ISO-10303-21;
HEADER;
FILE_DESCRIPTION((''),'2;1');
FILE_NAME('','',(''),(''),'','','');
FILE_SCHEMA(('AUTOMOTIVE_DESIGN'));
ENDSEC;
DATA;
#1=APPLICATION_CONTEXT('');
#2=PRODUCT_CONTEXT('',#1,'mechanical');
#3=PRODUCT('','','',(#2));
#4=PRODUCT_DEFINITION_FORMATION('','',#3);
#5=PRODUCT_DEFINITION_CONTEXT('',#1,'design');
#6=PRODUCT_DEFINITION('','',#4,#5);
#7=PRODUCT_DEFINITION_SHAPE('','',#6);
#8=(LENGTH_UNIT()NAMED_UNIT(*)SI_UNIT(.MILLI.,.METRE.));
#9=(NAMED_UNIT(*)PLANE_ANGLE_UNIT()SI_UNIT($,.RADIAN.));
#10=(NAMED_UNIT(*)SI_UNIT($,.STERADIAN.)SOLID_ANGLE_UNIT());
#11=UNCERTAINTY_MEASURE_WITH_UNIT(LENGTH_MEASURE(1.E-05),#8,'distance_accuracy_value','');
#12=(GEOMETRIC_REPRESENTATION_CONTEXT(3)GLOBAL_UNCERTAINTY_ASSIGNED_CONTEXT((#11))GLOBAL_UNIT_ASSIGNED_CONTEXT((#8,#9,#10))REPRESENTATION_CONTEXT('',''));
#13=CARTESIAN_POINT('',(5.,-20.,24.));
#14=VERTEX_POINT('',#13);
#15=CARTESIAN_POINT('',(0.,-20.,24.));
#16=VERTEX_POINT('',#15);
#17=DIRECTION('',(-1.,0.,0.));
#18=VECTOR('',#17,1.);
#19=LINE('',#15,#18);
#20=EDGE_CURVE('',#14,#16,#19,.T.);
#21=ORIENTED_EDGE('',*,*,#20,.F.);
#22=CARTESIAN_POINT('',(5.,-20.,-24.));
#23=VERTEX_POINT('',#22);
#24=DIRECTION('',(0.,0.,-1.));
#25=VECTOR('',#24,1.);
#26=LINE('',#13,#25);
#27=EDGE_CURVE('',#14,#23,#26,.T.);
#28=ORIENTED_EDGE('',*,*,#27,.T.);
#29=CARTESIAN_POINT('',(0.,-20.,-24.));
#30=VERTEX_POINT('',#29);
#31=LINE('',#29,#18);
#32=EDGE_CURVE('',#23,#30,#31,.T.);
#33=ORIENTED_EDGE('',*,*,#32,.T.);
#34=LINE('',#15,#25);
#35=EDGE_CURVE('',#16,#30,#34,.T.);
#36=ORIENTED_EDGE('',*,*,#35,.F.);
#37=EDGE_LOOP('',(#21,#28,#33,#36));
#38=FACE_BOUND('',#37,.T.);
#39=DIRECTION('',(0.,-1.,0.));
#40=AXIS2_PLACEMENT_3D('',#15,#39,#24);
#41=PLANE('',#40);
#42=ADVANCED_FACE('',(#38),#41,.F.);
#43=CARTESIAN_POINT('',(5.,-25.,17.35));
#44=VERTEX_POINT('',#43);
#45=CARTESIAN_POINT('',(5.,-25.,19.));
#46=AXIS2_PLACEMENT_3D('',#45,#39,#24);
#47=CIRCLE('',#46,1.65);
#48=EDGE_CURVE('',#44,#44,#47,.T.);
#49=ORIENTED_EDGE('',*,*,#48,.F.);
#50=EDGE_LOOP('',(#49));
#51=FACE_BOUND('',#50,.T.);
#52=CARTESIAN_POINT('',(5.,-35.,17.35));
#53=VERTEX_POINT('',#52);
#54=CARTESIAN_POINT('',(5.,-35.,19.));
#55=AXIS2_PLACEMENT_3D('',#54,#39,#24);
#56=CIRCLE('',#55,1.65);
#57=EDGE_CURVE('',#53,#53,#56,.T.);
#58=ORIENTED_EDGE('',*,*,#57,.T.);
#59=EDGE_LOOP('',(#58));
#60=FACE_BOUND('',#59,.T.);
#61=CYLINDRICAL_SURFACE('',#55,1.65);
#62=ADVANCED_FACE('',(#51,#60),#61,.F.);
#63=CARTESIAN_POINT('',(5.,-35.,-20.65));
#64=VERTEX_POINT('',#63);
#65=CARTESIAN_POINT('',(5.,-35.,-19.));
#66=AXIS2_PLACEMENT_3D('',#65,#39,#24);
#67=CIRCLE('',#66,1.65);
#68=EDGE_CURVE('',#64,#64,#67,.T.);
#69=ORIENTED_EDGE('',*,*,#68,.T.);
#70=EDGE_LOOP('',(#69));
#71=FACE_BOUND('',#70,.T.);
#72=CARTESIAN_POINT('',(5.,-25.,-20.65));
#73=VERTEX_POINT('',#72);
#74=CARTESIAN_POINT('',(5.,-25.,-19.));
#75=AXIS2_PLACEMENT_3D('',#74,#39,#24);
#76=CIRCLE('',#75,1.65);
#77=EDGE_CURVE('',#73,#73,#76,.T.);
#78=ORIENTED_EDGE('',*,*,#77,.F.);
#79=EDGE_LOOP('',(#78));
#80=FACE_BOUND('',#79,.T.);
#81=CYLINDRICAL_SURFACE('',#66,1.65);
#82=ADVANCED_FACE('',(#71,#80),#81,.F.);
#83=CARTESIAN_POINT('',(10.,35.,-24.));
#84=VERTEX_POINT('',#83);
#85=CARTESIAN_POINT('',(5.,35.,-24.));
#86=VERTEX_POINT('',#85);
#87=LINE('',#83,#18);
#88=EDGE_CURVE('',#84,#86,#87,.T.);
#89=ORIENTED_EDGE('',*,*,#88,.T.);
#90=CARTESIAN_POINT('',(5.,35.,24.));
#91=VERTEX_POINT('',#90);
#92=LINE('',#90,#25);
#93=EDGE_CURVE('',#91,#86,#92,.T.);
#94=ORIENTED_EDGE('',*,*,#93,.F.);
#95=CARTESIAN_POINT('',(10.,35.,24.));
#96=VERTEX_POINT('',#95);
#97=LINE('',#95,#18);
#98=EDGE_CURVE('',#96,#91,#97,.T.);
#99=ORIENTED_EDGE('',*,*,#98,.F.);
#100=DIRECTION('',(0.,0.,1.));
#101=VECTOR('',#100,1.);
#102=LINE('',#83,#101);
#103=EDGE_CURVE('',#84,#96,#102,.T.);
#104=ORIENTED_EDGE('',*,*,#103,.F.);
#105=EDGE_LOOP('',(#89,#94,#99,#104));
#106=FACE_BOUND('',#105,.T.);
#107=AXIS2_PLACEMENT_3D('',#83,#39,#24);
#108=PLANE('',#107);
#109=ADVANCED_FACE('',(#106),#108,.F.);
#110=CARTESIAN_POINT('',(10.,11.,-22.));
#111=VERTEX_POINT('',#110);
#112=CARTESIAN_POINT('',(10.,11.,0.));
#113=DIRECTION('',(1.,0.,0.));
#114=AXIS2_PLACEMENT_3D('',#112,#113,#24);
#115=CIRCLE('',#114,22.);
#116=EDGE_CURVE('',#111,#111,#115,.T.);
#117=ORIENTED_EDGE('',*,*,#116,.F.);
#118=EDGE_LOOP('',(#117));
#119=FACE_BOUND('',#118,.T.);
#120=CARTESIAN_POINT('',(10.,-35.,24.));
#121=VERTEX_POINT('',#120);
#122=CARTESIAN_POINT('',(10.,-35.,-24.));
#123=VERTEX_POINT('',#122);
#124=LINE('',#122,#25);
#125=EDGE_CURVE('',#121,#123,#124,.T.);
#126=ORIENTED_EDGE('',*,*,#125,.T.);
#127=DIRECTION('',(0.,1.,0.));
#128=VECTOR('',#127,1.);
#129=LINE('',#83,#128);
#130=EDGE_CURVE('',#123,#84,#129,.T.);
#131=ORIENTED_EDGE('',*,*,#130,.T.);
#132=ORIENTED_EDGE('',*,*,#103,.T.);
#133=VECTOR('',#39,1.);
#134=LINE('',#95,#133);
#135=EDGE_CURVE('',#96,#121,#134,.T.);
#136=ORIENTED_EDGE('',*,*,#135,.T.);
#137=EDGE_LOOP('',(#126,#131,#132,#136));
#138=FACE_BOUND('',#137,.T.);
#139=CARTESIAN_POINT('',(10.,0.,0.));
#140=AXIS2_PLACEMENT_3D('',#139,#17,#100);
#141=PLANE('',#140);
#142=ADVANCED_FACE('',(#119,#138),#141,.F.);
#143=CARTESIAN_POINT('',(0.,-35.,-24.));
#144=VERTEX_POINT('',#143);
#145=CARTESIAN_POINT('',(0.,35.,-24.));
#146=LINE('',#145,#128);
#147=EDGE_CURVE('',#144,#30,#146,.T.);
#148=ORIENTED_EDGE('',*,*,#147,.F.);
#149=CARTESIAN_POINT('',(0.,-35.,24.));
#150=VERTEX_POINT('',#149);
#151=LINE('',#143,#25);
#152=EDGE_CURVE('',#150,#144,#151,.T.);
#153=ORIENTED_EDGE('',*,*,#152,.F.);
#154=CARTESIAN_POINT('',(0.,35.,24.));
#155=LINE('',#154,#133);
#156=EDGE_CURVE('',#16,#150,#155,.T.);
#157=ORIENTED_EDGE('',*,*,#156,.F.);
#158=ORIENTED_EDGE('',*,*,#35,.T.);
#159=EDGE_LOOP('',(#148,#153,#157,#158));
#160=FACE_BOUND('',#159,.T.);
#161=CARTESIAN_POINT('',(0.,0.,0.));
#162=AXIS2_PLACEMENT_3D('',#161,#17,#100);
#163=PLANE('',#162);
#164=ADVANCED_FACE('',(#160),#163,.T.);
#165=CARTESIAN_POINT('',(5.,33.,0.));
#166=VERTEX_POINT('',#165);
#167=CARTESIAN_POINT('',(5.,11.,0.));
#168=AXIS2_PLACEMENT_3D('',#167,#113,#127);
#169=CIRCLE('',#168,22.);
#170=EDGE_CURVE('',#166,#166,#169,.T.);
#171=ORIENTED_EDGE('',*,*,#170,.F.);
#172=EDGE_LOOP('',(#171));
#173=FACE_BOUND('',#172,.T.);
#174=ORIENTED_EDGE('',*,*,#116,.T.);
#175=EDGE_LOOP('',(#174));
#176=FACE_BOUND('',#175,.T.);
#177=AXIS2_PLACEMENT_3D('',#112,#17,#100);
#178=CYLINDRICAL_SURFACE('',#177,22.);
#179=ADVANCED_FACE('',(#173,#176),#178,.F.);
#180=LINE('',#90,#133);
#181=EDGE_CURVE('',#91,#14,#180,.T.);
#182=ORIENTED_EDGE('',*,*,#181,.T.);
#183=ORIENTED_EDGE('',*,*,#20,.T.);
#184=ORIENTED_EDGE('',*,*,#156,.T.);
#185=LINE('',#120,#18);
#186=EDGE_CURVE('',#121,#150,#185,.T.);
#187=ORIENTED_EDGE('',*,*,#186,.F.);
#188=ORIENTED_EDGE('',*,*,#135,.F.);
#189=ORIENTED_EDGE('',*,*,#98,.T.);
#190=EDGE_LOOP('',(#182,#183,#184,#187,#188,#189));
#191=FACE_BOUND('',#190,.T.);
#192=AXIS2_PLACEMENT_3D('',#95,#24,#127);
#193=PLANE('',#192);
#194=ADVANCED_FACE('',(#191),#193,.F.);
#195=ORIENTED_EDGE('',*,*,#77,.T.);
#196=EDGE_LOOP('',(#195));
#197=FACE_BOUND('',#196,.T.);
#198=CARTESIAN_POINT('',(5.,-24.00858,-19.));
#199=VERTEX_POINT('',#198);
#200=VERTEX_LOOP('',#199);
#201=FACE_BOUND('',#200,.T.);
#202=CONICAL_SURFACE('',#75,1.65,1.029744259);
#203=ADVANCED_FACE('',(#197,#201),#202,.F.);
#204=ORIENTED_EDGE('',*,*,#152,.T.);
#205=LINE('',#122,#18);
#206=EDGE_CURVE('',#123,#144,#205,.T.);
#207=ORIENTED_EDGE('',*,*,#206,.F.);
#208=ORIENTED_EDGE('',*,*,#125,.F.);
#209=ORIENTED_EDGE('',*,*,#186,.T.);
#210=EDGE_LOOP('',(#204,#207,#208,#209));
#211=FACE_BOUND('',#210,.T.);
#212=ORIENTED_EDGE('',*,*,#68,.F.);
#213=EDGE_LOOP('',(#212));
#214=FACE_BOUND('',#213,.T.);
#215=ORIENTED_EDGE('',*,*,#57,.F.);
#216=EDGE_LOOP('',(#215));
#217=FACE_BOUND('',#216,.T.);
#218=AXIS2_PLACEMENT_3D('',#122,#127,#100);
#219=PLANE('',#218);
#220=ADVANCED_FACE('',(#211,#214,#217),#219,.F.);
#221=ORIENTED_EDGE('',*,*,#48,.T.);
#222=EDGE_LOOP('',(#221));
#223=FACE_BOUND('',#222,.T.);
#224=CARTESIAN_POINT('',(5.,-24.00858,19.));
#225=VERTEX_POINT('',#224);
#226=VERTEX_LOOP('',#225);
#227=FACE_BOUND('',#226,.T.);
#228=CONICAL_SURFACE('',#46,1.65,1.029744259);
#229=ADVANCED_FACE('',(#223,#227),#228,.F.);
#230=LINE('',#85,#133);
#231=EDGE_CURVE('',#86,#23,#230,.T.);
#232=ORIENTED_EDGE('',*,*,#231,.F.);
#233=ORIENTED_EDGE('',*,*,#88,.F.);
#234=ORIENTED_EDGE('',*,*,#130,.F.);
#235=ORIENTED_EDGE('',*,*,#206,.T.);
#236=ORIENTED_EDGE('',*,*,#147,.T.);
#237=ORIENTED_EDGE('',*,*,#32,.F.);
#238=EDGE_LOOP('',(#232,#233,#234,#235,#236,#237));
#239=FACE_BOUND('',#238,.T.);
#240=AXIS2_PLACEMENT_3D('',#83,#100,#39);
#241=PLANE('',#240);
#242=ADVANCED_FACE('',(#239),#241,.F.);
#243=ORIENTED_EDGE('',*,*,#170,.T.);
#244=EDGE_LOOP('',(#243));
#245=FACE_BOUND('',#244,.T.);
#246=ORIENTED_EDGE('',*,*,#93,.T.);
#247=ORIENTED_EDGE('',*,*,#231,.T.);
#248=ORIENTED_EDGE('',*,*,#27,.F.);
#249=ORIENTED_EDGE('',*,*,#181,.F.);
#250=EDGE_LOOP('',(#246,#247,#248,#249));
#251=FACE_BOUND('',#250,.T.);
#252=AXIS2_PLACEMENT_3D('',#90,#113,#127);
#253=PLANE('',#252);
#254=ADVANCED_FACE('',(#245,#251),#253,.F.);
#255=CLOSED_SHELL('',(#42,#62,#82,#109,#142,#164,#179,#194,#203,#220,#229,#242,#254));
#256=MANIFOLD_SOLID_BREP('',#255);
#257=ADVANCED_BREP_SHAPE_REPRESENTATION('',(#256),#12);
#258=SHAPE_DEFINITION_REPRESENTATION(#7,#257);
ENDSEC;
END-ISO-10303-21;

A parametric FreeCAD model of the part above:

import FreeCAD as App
import Part
import Sketcher

doc = App.newDocument("Part")
body = doc.addObject("PartDesign::Body", "Body")

# Sketch on YZ plane
sketch1 = body.newObject("Sketcher::SketchObject", "Sketch")
sketch1.AttachmentSupport = (doc.getObject("YZ_Plane"), [""])
sketch1.MapMode = "FlatFace"
sketch1.addGeometry([
    Part.LineSegment(App.Vector(35, 24, 0), App.Vector(-35, 24, 0)),  # 0
    Part.LineSegment(App.Vector(-35, 24, 0), App.Vector(-35, -24, 0)),  # 1
    Part.LineSegment(App.Vector(-35, -24, 0), App.Vector(35, -24, 0)),  # 2
    Part.LineSegment(App.Vector(35, -24, 0), App.Vector(35, 24, 0)),  # 3
    Part.Circle(App.Vector(11, 0, 0), App.Vector(0, 0, 1), 22),  # 4
], False)
sketch1.addConstraint([
    Sketcher.Constraint("Coincident", 0, 2, 1, 1),
    Sketcher.Constraint("Coincident", 1, 2, 2, 1),
    Sketcher.Constraint("Coincident", 2, 2, 3, 1),
    Sketcher.Constraint("Coincident", 3, 2, 0, 1),
    Sketcher.Constraint("Horizontal", 0),
    Sketcher.Constraint("Vertical", 1),
    Sketcher.Constraint("Horizontal", 2),
    Sketcher.Constraint("Vertical", 3),
    Sketcher.Constraint("Symmetric", 0, 2, 2, 2, -1, 1),
    Sketcher.Constraint("PointOnObject", 4, 3, -1),
    Sketcher.Constraint("Diameter", 4, 44.0),
    Sketcher.Constraint("DistanceX", 0, 2, 0, 1, 70.0),
    Sketcher.Constraint("DistanceY", 1, 2, 1, 1, 48.0),
    Sketcher.Constraint("DistanceX", -1, 1, 4, 3, 11.0),
])
pad1 = body.newObject("PartDesign::Pad", "Pad")
pad1.Profile = sketch1
pad1.Length = 10

# Sketch on XY plane
sketch2 = body.newObject("Sketcher::SketchObject", "Sketch001")
sketch2.AttachmentSupport = (doc.getObject("XY_Plane"), [""])
sketch2.MapMode = "FlatFace"
sketch2.AttachmentOffset = App.Placement(App.Vector(0, 0, -24), App.Rotation())
sketch2.addGeometry([
    Part.LineSegment(App.Vector(5, 35, 0), App.Vector(5, -20, 0)),
    Part.LineSegment(App.Vector(5, -20, 0), App.Vector(0, -20, 0)),
    Part.LineSegment(App.Vector(0, -20, 0), App.Vector(0, 35, 0)),
    Part.LineSegment(App.Vector(0, 35, 0), App.Vector(5, 35, 0)),
], False)
sketch2.addConstraint([
    Sketcher.Constraint("Coincident", 0, 2, 1, 1),
    Sketcher.Constraint("Coincident", 1, 2, 2, 1),
    Sketcher.Constraint("Coincident", 2, 2, 3, 1),
    Sketcher.Constraint("Coincident", 3, 2, 0, 1),
    Sketcher.Constraint("Vertical", 0),
    Sketcher.Constraint("Horizontal", 1),
    Sketcher.Constraint("Vertical", 2),
    Sketcher.Constraint("Horizontal", 3),
    Sketcher.Constraint("PointOnObject", 1, 2, -2),
    Sketcher.Constraint("DistanceX", 1, 2, 1, 1, 5.0),
    Sketcher.Constraint("DistanceY", 0, 2, 0, 1, 55.0),
    Sketcher.Constraint("DistanceY", 0, 2, -1, 1, 20.0),
])
pocket1 = body.newObject("PartDesign::Pocket", "Pocket")
pocket1.Profile = sketch2
pocket1.Type = "ThroughAll"
pocket1.Reversed = True

# Sketch on XZ plane
sketch3 = body.newObject("Sketcher::SketchObject", "Sketch002")
sketch3.AttachmentSupport = (doc.getObject("XZ_Plane"), [""])
sketch3.MapMode = "FlatFace"
sketch3.AttachmentOffset = App.Placement(App.Vector(0, 0, 35), App.Rotation())
sketch3.addGeometry([
    Part.Circle(App.Vector(5, -19, 0), App.Vector(0, 0, 1), 1.65),
    Part.Circle(App.Vector(5, 19, 0), App.Vector(0, 0, 1), 1.65),
], False)
sketch3.addConstraint([
    Sketcher.Constraint("Equal", 0, 1),
    Sketcher.Constraint("Symmetric", 0, 3, 1, 3, -1),
    Sketcher.Constraint("Diameter", 0, 3.3),
    Sketcher.Constraint("DistanceX", -1, 1, 0, 3, 5.0),
    Sketcher.Constraint("DistanceY", 0, 3, -1, 1, 19.0),
])
doc.recompute()
hole = body.newObject("PartDesign::Hole", "Hole")
hole.Profile = sketch3
hole.ThreadType = "None"
hole.Diameter = 3.3
hole.DepthType = "Dimension"
hole.Depth = 10
hole.DrillPoint = "Angled"
hole.DrillPointAngle = 118

doc.recompute()
